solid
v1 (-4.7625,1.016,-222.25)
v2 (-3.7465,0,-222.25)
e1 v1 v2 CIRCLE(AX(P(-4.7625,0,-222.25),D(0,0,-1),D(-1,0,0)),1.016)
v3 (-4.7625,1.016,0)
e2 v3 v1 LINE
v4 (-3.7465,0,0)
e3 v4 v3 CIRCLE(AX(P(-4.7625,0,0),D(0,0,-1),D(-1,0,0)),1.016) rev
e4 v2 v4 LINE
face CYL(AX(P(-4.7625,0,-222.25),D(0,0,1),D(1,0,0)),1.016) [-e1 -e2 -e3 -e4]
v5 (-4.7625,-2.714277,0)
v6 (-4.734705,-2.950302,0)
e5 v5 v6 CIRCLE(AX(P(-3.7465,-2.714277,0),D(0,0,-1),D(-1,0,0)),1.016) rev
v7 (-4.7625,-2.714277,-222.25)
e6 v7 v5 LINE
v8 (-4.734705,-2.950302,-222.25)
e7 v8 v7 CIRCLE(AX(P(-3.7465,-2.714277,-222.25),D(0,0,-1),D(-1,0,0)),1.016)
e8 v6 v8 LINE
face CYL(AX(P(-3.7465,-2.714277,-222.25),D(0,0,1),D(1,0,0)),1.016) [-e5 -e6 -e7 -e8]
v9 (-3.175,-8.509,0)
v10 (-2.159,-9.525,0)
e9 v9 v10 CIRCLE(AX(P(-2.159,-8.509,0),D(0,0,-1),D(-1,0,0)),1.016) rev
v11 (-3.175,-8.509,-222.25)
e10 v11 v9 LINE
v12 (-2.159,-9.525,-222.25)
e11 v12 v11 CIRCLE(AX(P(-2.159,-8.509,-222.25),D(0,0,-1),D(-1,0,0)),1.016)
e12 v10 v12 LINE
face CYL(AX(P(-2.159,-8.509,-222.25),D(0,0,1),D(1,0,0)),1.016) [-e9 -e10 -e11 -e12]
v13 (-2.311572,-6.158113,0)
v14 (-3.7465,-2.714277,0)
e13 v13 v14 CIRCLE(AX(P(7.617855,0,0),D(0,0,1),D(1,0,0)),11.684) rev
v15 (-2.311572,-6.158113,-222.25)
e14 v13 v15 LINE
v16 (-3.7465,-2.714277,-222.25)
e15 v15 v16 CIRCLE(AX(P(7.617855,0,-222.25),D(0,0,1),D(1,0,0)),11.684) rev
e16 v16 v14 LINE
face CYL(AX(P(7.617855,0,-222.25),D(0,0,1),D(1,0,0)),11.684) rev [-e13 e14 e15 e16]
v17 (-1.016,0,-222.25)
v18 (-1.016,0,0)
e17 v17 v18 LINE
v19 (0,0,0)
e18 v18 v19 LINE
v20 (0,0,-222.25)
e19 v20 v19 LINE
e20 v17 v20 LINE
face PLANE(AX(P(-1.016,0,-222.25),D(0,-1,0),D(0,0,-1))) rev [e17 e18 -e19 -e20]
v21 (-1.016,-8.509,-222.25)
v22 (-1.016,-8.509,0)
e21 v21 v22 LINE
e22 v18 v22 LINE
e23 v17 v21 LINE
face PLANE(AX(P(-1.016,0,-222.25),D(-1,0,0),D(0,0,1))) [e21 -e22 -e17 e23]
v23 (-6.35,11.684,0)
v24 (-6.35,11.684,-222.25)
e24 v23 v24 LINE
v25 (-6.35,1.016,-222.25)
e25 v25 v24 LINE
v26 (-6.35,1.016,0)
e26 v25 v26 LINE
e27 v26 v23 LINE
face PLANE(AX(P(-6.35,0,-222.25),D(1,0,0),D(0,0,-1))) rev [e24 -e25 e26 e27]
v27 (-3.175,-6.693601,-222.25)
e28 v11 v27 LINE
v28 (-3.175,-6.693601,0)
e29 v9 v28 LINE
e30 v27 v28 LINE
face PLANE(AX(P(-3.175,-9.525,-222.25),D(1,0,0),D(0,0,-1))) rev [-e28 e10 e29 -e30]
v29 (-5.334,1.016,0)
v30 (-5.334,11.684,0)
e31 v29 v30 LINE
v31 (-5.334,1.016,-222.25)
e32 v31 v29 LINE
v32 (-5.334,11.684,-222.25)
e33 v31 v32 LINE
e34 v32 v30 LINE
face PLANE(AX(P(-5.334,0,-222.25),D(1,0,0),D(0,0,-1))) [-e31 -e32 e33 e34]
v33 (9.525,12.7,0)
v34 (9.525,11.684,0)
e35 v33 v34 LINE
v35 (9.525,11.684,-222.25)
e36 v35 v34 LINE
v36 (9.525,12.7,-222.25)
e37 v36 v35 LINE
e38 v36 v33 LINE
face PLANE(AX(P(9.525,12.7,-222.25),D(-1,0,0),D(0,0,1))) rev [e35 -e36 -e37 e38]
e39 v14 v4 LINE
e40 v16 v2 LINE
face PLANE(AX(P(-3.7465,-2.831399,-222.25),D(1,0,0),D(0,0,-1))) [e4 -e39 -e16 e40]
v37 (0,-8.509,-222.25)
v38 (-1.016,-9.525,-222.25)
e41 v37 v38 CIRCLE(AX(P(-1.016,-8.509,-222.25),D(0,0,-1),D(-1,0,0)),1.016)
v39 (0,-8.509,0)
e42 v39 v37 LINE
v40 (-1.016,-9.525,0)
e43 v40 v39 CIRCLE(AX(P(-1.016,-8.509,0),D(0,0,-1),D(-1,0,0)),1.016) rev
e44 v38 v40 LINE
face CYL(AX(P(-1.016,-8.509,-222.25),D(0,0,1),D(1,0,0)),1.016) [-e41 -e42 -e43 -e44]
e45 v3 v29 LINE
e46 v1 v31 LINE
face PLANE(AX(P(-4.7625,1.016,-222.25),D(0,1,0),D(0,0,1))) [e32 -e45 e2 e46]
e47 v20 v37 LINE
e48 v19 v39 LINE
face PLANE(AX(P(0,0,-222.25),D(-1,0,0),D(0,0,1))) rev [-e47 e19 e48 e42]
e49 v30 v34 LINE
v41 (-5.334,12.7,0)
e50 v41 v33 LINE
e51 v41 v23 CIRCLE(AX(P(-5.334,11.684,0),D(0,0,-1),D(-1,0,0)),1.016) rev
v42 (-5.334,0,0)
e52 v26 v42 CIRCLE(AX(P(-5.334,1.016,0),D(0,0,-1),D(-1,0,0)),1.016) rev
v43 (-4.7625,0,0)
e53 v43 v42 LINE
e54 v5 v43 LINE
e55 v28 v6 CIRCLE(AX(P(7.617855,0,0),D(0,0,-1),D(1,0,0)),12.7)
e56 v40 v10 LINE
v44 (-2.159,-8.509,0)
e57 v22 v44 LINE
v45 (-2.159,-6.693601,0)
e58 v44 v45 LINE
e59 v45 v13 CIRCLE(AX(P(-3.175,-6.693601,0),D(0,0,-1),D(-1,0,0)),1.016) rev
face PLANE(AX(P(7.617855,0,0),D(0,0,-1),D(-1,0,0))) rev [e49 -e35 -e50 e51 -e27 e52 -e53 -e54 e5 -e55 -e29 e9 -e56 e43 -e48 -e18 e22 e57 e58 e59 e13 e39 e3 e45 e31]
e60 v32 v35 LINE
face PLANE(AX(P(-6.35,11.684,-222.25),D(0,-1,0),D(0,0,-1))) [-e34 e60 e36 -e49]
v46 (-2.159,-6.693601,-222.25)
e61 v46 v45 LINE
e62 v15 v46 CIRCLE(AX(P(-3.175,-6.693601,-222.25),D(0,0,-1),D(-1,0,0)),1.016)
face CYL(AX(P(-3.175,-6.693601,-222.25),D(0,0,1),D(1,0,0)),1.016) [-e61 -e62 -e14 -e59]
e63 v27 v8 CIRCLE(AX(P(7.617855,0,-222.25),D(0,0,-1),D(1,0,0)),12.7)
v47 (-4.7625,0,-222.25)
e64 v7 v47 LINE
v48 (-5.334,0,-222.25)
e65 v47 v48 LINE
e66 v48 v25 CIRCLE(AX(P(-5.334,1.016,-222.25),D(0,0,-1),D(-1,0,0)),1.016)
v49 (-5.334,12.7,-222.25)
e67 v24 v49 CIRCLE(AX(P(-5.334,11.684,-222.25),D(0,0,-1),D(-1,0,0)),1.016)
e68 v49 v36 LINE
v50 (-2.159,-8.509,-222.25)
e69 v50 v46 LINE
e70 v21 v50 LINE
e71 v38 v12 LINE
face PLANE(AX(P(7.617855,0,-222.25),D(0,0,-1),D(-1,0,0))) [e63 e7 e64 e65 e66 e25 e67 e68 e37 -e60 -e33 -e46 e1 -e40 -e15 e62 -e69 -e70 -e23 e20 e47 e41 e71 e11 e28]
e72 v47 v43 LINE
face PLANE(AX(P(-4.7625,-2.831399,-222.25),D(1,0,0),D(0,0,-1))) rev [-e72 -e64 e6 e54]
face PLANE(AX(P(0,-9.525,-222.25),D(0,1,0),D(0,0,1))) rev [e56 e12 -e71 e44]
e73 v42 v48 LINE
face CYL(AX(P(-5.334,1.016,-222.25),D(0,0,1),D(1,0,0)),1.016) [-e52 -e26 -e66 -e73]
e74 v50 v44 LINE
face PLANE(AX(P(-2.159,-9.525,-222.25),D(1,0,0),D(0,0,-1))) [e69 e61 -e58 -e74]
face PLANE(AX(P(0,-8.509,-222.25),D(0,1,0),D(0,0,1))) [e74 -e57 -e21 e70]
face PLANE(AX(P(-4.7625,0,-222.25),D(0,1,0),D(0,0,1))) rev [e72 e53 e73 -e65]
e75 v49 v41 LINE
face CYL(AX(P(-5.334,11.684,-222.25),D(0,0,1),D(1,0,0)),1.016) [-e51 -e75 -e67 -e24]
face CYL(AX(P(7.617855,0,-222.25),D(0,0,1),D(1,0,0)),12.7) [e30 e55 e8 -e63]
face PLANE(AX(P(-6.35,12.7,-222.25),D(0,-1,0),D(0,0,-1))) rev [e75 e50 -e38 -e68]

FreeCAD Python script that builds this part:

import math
import FreeCAD as App
import Part
import Sketcher
Q = App.Units.Quantity


def edges_at(feature, points):
    """Names of the edges that pass closest to the given points."""
    edges = feature.Shape.Edges
    near = lambda p: min(range(len(edges)), key=lambda i: edges[i].distToShape(Part.Vertex(*p))[0])
    return sorted({f"Edge{near(p) + 1}" for p in points})

doc = App.newDocument("Part")
body = doc.addObject("PartDesign::Body", "Body")

sketch1 = body.newObject("Sketcher::SketchObject", "Sketch")
sketch1.AttachmentSupport = (doc.getObject("XY_Plane"), [""])
sketch1.MapMode = "FlatFace"
sketch1.addGeometry([
    Part.LineSegment(App.Vector(0, -9.5, 0), App.Vector(0, 0, 0)),
    Part.LineSegment(App.Vector(0, 0, 0), App.Vector(-1, 0, 0)),
    Part.LineSegment(App.Vector(-1, 0, 0), App.Vector(-1, -8.5, 0)),
    Part.LineSegment(App.Vector(-1, -8.5, 0), App.Vector(-2.2, -8.5, 0)),
    Part.LineSegment(App.Vector(-2.2, -8.5, 0), App.Vector(-2.2, -6.4, 0)),
    Part.ArcOfCircle(Part.Circle(App.Vector(7.6, 0, 0), App.Vector(0, 0, 1), 11.7), math.radians(-166.57), math.radians(-146.8)),
    Part.LineSegment(App.Vector(-3.7, -2.7, 0), App.Vector(-3.7, 1, 0)),
    Part.LineSegment(App.Vector(-3.7, 1, 0), App.Vector(-5.3, 1, 0)),
    Part.LineSegment(App.Vector(-5.3, 1, 0), App.Vector(-5.3, 11.7, 0)),
    Part.LineSegment(App.Vector(-5.3, 11.7, 0), App.Vector(9.5, 11.7, 0)),
    Part.LineSegment(App.Vector(9.5, 11.7, 0), App.Vector(9.5, 12.7, 0)),
    Part.LineSegment(App.Vector(9.5, 12.7, 0), App.Vector(-6.3, 12.7, 0)),
    Part.LineSegment(App.Vector(-6.3, 12.7, 0), App.Vector(-6.3, 0, 0)),
    Part.LineSegment(App.Vector(-6.3, 0, 0), App.Vector(-4.8, 0, 0)),
    Part.LineSegment(App.Vector(-4.8, 0, 0), App.Vector(-4.8, -2.8, 0)),
    Part.ArcOfCircle(Part.Circle(App.Vector(7.6, 0, 0), App.Vector(0, 0, 1), 12.7), math.radians(-167.12), math.radians(-148.19)),
    Part.LineSegment(App.Vector(-3.2, -6.7, 0), App.Vector(-3.2, -9.5, 0)),
    Part.LineSegment(App.Vector(-3.2, -9.5, 0), App.Vector(0, -9.5, 0)),
], False)
sketch1.addConstraint([
    Sketcher.Constraint("Coincident", 0, 2, 1, 1),
    Sketcher.Constraint("Coincident", 1, 2, 2, 1),
    Sketcher.Constraint("Coincident", 2, 2, 3, 1),
    Sketcher.Constraint("Coincident", 3, 2, 4, 1),
    Sketcher.Constraint("Coincident", 4, 2, 5, 2),
    Sketcher.Constraint("Coincident", 5, 1, 6, 1),
    Sketcher.Constraint("Coincident", 6, 2, 7, 1),
    Sketcher.Constraint("Coincident", 7, 2, 8, 1),
    Sketcher.Constraint("Coincident", 8, 2, 9, 1),
    Sketcher.Constraint("Coincident", 9, 2, 10, 1),
    Sketcher.Constraint("Coincident", 10, 2, 11, 1),
    Sketcher.Constraint("Coincident", 11, 2, 12, 1),
    Sketcher.Constraint("Coincident", 12, 2, 13, 1),
    Sketcher.Constraint("Coincident", 13, 2, 14, 1),
    Sketcher.Constraint("Coincident", 14, 2, 15, 1),
    Sketcher.Constraint("Coincident", 15, 2, 16, 1),
    Sketcher.Constraint("Coincident", 16, 2, 17, 1),
    Sketcher.Constraint("Coincident", 17, 2, 0, 1),
    Sketcher.Constraint("Vertical", 0),
    Sketcher.Constraint("Horizontal", 1),
    Sketcher.Constraint("Vertical", 2),
    Sketcher.Constraint("Horizontal", 3),
    Sketcher.Constraint("Vertical", 4),
    Sketcher.Constraint("Vertical", 6),
    Sketcher.Constraint("Horizontal", 7),
    Sketcher.Constraint("Vertical", 8),
    Sketcher.Constraint("Horizontal", 9),
    Sketcher.Constraint("Vertical", 10),
    Sketcher.Constraint("Horizontal", 11),
    Sketcher.Constraint("Vertical", 12),
    Sketcher.Constraint("Horizontal", 13),
    Sketcher.Constraint("Vertical", 14),
    Sketcher.Constraint("Vertical", 16),
    Sketcher.Constraint("Horizontal", 17),
    Sketcher.Constraint("Coincident", 0, 2, -1, 1),
    Sketcher.Constraint("Coincident", 15, 3, 5, 3),
    Sketcher.Constraint("PointOnObject", 5, 3, -1),
    Sketcher.Constraint("PointOnObject", 12, 2, -1),
    Sketcher.Constraint("Equal", 7, 13),
    Sketcher.Constraint("Equal", 1, 10),
    Sketcher.Constraint("Equal", 14, 16),
    Sketcher.Constraint("Radius", 15, Q("0.5 in")),
    Sketcher.Constraint("Radius", 5, Q("0.46 in")),
    Sketcher.Constraint("DistanceY", 12, 2, 12, 1, Q("0.5 in")),
    Sketcher.Constraint("DistanceX", 1, 2, 1, 1, Q("0.04 in")),
    Sketcher.Constraint("DistanceY", 8, 1, 8, 2, Q("0.42 in")),
    Sketcher.Constraint("DistanceX", 3, 2, 3, 1, Q("0.045 in")),
    Sketcher.Constraint("DistanceX", 7, 2, 7, 1, Q("0.0625 in")),
    Sketcher.Constraint("DistanceX", 9, 1, 9, 2, Q("0.585 in")),
    Sketcher.Constraint("DistanceX", 11, 2, 11, 1, Q("0.625 in")),
    Sketcher.Constraint("DistanceX", 17, 1, 17, 2, Q("0.125 in")),
    Sketcher.Constraint("DistanceY", 0, 1, 0, 2, Q("0.375 in")),
    Sketcher.Constraint("DistanceY", 2, 2, 2, 1, Q("0.335 in")),
    Sketcher.Constraint("DistanceX", 7, 2, -1, 1, Q("0.21 in")),
])
pad1 = body.newObject("PartDesign::Pad", "Pad")
pad1.Profile = sketch1
pad1.Length = Q("8.75 in")
pad1.Reversed = True
doc.recompute()

fillet = body.newObject("PartDesign::Fillet", "Fillet")
fillet.Base = (pad1, edges_at(pad1, [
    (-3.747, 1.016, -111.125),
    (-2.159, -6.398, -111.125),
    (0, -9.525, -111.125),
    (-3.175, -9.525, -111.125),
    (-4.763, -2.831, -111.125),
    (-6.35, 0, -111.125),
    (-6.35, 12.7, -111.125),
]))
fillet.Radius = Q("0.04 in")

doc.recompute()
